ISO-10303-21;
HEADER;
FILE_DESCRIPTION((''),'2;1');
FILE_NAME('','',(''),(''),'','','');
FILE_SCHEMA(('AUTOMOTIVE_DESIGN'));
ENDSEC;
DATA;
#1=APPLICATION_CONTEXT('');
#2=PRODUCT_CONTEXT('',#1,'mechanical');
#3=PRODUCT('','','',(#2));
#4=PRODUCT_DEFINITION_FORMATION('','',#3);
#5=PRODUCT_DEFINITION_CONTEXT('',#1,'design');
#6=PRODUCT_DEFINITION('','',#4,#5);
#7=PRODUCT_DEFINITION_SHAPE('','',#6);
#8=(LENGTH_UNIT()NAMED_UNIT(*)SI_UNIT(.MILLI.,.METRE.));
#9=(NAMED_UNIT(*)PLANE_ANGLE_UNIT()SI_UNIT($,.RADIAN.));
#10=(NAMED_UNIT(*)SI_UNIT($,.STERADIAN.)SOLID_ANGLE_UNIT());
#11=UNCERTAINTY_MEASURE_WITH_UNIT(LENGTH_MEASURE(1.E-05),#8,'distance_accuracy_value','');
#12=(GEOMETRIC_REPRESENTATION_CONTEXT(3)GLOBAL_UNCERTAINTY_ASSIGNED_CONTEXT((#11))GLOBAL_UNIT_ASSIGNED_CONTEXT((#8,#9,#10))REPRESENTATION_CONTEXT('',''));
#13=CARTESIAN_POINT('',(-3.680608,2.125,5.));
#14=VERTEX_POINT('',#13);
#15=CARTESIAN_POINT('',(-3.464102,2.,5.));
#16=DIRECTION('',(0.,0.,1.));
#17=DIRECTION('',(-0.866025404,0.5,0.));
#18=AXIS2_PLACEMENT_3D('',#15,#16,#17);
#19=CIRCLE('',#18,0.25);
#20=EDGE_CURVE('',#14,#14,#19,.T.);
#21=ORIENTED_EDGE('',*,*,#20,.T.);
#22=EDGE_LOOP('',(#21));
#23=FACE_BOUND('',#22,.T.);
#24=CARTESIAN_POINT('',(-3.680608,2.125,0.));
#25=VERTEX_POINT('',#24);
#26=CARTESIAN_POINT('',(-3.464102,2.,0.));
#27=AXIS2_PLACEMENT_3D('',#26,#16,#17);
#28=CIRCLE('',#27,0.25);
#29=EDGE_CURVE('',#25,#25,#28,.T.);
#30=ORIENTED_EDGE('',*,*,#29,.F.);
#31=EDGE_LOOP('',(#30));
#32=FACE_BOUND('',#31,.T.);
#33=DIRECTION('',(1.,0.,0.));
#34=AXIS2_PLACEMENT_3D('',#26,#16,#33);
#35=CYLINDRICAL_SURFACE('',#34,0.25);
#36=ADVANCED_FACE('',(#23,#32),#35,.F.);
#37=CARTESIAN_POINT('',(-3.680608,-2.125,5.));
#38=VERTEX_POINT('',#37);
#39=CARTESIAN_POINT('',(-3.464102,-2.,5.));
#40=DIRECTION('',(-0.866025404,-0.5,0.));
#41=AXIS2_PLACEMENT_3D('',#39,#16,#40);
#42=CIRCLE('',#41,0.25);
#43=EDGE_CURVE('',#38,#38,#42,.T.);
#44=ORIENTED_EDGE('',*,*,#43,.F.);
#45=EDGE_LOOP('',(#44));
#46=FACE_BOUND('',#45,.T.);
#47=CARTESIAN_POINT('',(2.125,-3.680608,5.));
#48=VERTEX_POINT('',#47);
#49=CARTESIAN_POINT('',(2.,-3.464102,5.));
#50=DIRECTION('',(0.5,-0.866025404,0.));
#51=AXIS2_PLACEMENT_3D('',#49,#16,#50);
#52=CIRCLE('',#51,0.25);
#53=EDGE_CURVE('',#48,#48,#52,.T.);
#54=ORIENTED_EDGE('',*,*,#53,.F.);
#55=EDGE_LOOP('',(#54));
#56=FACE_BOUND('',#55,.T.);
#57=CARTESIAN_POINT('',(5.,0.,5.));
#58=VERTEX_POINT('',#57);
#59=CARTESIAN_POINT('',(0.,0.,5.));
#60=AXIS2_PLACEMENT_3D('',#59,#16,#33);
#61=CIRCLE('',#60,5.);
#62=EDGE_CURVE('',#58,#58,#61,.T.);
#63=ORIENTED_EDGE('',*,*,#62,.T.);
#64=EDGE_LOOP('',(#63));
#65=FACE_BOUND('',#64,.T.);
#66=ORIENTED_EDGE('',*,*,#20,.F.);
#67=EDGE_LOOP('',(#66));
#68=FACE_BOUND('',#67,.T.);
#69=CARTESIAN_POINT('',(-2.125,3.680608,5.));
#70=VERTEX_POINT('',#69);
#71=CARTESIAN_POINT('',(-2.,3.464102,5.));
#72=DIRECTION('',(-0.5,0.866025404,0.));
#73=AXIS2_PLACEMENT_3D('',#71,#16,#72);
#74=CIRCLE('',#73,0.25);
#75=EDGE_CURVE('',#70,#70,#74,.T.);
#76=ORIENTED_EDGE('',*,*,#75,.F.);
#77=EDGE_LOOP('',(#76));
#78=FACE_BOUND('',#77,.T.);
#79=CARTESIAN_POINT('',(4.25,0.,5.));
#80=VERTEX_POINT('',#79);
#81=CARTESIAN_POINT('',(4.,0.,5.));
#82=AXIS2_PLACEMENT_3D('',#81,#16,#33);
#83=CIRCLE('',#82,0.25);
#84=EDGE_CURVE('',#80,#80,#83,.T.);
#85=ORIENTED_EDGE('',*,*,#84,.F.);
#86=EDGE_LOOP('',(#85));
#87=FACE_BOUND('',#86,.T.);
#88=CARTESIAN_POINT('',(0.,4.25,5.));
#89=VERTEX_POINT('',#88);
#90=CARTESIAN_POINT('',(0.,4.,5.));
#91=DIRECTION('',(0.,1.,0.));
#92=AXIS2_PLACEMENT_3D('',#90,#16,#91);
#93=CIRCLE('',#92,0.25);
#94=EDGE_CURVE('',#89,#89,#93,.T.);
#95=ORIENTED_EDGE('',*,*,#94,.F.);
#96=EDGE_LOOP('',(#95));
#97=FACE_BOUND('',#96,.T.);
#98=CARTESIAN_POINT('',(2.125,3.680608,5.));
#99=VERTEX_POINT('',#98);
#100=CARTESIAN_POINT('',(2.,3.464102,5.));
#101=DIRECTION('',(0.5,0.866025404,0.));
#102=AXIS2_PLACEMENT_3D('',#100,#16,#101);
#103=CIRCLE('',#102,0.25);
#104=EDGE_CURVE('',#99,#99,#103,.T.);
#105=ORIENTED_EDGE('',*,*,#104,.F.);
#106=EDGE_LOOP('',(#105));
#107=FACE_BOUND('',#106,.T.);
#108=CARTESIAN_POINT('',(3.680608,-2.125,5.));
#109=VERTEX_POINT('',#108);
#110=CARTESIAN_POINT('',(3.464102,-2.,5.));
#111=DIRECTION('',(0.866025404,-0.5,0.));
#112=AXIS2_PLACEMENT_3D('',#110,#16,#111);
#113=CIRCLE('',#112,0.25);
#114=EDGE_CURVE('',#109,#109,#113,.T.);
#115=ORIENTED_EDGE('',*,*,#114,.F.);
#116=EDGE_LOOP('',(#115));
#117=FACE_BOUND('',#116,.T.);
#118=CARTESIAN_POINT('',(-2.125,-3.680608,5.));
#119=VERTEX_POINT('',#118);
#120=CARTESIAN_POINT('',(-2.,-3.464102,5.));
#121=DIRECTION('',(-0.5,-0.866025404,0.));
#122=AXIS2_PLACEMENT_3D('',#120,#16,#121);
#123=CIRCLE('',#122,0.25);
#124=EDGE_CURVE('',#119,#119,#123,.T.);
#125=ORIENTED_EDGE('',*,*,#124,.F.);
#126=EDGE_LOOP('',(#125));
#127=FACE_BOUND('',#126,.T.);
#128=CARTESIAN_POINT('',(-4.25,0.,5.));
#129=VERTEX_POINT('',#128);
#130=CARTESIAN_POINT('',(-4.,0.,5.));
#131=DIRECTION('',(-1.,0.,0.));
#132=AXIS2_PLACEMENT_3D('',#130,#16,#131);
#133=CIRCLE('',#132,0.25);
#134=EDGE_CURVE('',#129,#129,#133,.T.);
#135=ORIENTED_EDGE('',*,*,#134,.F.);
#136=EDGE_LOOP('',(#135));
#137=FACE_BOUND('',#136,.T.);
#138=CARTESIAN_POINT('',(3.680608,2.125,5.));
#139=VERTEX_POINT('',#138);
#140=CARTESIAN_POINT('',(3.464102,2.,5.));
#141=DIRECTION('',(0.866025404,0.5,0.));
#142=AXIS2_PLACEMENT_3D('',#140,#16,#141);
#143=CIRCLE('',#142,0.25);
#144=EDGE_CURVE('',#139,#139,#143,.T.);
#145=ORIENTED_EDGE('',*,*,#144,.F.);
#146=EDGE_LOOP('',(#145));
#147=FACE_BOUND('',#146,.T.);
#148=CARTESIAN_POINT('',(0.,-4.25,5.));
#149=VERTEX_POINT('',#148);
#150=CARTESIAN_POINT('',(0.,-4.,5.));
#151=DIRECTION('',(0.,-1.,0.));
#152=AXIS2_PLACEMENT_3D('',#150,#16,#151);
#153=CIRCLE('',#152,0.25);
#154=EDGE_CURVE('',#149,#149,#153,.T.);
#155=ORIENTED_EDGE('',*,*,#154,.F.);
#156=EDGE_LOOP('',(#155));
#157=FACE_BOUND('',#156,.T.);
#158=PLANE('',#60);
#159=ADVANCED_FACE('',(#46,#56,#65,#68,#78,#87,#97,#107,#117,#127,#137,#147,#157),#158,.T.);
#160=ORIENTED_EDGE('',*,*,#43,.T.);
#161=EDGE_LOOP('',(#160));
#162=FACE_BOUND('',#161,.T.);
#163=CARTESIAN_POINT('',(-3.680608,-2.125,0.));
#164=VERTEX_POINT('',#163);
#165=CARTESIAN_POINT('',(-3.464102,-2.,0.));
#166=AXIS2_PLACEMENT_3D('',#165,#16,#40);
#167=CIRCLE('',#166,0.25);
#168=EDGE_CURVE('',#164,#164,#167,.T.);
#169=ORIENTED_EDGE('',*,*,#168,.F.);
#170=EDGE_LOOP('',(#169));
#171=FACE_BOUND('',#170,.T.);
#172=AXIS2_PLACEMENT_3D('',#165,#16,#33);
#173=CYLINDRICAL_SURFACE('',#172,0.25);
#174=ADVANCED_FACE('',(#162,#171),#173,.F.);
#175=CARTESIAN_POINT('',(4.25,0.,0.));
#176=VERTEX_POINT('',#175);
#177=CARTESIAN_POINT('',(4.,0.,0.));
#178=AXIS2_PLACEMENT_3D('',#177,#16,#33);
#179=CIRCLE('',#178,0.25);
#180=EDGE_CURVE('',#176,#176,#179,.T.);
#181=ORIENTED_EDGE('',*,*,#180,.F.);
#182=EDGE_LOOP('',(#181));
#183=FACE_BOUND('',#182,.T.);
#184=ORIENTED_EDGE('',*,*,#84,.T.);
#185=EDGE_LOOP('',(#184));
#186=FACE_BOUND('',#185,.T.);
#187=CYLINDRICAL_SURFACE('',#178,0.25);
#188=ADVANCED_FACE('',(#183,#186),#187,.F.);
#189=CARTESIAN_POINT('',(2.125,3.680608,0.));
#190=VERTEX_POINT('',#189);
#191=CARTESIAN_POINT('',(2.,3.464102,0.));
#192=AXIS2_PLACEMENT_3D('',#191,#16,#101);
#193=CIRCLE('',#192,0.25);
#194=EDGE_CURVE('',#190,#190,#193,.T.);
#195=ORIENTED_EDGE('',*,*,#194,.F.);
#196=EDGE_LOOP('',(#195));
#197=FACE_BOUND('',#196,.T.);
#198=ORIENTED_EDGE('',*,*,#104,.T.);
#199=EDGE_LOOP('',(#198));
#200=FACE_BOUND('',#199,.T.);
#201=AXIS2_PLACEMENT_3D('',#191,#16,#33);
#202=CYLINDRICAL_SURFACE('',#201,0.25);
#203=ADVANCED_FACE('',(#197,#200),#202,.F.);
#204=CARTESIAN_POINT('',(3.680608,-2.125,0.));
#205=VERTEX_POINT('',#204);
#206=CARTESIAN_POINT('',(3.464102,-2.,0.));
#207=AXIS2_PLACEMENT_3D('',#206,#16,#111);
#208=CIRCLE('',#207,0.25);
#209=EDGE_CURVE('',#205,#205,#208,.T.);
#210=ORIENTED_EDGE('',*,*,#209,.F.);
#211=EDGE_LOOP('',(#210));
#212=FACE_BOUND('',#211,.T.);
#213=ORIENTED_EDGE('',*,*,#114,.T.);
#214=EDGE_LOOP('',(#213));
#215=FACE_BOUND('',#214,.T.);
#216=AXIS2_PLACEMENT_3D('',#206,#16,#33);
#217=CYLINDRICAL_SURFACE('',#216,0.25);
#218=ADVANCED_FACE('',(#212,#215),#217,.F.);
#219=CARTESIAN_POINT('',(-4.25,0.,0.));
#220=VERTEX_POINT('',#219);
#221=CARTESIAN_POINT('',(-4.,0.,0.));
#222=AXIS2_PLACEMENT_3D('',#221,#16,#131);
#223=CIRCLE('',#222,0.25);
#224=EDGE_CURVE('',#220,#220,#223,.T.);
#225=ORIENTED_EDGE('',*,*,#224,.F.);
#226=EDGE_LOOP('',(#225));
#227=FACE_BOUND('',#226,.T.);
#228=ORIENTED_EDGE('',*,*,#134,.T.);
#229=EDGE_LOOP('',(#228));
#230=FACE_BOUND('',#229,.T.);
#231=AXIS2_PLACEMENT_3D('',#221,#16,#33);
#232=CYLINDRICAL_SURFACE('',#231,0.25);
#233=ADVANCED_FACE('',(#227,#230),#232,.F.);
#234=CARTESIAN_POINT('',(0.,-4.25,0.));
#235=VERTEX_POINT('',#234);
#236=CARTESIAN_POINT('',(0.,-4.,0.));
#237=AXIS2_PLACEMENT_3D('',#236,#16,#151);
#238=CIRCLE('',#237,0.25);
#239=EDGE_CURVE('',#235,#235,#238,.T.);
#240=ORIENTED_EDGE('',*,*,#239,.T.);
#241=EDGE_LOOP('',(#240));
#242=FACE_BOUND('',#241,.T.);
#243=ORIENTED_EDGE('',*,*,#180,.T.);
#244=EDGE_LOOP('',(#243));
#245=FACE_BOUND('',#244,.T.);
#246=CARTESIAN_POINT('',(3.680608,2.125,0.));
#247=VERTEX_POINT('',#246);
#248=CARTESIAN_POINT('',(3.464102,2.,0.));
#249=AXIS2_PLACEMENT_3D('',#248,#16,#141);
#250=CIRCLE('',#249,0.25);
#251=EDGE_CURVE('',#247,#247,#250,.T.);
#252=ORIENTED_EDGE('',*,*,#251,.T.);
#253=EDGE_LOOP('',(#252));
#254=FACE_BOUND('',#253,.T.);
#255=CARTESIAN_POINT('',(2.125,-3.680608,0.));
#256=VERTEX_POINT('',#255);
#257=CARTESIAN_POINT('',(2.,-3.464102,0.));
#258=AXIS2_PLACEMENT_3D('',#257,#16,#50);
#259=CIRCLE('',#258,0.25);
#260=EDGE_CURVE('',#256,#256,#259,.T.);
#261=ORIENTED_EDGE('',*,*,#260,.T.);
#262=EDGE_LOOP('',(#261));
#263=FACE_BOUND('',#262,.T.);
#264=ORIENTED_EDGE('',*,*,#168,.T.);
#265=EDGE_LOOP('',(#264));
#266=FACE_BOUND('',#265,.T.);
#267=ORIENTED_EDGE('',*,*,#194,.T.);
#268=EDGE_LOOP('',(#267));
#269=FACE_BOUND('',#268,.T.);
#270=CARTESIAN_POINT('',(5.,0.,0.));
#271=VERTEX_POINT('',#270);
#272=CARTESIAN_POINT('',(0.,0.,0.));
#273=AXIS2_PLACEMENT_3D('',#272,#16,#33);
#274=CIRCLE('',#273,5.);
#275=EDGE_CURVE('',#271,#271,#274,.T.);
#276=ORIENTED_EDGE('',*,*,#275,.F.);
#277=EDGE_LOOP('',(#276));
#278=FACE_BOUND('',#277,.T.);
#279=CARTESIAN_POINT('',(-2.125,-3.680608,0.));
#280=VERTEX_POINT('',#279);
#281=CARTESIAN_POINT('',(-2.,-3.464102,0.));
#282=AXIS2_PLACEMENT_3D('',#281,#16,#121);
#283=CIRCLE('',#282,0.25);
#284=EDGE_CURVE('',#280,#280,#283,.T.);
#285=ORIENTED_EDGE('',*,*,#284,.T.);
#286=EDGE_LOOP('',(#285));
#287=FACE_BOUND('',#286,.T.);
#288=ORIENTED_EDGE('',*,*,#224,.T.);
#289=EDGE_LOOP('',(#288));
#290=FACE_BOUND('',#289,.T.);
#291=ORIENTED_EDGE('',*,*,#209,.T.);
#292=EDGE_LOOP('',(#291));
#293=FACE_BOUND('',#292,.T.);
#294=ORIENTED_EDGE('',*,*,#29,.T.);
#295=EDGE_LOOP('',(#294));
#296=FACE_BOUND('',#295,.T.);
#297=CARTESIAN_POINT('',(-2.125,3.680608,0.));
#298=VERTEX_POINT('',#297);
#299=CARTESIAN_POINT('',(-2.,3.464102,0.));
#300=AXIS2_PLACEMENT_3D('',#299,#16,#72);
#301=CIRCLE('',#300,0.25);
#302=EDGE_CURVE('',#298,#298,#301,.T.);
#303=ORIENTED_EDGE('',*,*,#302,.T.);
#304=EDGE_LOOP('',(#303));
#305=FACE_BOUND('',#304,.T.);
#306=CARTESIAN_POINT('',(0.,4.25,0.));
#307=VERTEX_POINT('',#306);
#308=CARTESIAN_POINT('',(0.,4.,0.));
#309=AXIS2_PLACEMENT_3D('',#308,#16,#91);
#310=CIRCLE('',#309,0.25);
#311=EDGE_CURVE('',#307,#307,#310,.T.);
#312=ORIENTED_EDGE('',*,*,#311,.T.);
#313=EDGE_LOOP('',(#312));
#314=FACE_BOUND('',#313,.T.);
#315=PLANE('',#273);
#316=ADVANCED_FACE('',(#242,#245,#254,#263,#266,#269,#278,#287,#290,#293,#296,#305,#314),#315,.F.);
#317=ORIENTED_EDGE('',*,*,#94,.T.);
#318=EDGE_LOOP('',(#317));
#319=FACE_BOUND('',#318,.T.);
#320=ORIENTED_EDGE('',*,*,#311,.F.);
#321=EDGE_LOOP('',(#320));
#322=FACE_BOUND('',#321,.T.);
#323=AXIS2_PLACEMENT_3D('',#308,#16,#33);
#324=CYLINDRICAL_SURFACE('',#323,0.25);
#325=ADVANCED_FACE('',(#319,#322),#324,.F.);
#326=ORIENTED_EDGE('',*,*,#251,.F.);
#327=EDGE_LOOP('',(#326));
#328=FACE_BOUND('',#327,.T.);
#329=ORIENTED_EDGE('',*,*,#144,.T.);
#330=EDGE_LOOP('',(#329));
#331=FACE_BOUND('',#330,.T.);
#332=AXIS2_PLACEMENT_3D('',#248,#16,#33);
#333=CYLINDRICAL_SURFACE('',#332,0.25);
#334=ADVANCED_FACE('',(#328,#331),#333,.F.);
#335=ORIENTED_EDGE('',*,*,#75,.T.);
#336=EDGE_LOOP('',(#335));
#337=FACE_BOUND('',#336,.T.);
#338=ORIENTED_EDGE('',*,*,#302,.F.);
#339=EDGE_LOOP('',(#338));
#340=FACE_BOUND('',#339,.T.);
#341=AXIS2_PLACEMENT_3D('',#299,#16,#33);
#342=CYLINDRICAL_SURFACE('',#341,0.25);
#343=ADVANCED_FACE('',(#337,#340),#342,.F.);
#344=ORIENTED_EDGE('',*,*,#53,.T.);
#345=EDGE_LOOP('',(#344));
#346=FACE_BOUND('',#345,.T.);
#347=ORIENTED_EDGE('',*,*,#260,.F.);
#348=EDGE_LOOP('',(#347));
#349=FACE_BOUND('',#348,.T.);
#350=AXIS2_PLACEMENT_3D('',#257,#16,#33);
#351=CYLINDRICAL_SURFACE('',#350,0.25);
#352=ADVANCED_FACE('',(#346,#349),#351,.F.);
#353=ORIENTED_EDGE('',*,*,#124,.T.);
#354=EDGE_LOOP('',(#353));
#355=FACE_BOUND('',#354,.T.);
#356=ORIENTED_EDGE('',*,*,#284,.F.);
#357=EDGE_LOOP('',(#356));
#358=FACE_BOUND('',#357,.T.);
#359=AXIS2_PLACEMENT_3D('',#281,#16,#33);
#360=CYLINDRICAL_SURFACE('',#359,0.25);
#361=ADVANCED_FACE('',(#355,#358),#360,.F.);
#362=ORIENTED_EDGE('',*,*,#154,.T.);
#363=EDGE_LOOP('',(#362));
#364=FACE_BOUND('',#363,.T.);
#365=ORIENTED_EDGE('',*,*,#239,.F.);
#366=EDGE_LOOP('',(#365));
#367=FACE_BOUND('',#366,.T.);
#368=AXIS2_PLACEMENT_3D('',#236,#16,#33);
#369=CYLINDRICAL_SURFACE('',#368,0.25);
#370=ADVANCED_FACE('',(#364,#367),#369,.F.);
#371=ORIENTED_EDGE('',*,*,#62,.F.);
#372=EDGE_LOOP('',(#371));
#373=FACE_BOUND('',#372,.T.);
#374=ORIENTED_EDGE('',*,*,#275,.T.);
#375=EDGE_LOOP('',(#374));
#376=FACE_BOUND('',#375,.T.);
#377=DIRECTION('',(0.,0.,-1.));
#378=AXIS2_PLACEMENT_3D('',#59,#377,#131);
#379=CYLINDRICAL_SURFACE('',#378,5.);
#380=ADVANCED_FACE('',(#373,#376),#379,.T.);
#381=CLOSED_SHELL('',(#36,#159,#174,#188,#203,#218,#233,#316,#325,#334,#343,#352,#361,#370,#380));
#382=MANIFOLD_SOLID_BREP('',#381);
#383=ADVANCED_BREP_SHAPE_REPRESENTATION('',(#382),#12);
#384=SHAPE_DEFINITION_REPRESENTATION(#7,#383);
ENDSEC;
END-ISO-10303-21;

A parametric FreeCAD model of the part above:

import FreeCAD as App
import Part
import Sketcher

V = App.Vector

doc = App.newDocument("Part")
params = doc.addObject("Spreadsheet::Sheet", "Params")
for row, (alias, value) in enumerate([
    ("sketch1_diameter", "10 mm"),
    ("pad1_length", "5 mm"),
    ("sketch2_diameter", "0.5 mm"),
], start=1):
    params.set(f"A{row}", alias)
    params.set(f"B{row}", "=" + value)
    params.setAlias(f"B{row}", alias)

body = doc.addObject("PartDesign::Body", "Body")

# Sketch on XY plane
sketch1 = body.newObject("Sketcher::SketchObject", "Sketch")
sketch1.AttachmentSupport = (doc.getObject("XY_Plane"), [""])
sketch1.MapMode = "FlatFace"
sketch1.addGeometry(Part.Circle(V(0, 0, 0), V(0, 0, 1), 5), False)
sketch1.addConstraint([
    Sketcher.Constraint("Coincident", 0, 3, -1, 1),
    Sketcher.Constraint("Diameter", 0, 10.0),
])
sketch1.setExpression("Constraints[1]", "Params.sketch1_diameter")
pad1 = body.newObject("PartDesign::Pad", "Pad")
pad1.Profile = sketch1
pad1.setExpression("Length", "Params.pad1_length")

# Sketch on XY plane
sketch2 = body.newObject("Sketcher::SketchObject", "Sketch001")
sketch2.AttachmentSupport = (doc.getObject("XY_Plane"), [""])
sketch2.MapMode = "FlatFace"
sketch2.AttachmentOffset = App.Placement(V(0, 0, 5), App.Rotation())
sketch2.addGeometry(Part.Circle(V(4, 0, 0), V(0, 0, 1), 0.25), False)
sketch2.addConstraint([
    Sketcher.Constraint("PointOnObject", 0, 3, -1),
    Sketcher.Constraint("Diameter", 0, 0.5),
    Sketcher.Constraint("DistanceX", -1, 1, 0, 3, 4.0),
])
sketch2.setExpression("Constraints[1]", "Params.sketch2_diameter")
pocket1 = body.newObject("PartDesign::Pocket", "Pocket")
pocket1.Profile = sketch2
pocket1.Type = "ThroughAll"
doc.recompute()

polarpattern = body.newObject("PartDesign::PolarPattern", "PolarPattern")
polarpattern.Originals = [pocket1]
polarpattern.Axis = (doc.getObject("Z_Axis"), [""])
polarpattern.Angle = 360
polarpattern.Occurrences = 12
body.Tip = polarpattern

doc.recompute()
